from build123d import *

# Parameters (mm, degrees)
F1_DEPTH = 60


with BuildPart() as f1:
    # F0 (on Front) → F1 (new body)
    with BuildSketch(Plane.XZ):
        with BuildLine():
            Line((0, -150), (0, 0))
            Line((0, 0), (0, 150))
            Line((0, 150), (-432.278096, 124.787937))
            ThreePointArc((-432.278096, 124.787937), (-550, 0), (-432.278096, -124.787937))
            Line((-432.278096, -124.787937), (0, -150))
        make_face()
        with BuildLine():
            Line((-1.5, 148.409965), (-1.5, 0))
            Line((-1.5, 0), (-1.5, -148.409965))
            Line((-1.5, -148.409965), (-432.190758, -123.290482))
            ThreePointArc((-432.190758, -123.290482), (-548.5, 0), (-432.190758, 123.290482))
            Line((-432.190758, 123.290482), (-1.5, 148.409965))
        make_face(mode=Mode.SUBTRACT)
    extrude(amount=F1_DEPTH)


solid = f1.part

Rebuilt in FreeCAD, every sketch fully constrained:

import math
import FreeCAD as App
import Part
import Sketcher
Q = App.Units.Quantity

doc = App.newDocument("Part")
body = doc.addObject("PartDesign::Body", "Body")

# Sketch on XZ plane
sketch1 = body.newObject("Sketcher::SketchObject", "Sketch")
sketch1.AttachmentSupport = (doc.getObject("XZ_Plane"), [""])
sketch1.MapMode = "FlatFace"
sketch1.addGeometry([
    Part.LineSegment(App.Vector(0, -150, 0), App.Vector(0, 150, 0)),  # 0
    Part.LineSegment(App.Vector(0, 150, 0), App.Vector(-432, 125, 0)),  # 1
    Part.ArcOfCircle(Part.Circle(App.Vector(-425, 0, 0), App.Vector(0, 0, 1), 125), math.radians(93), math.radians(267)),  # 2
    Part.LineSegment(App.Vector(-432, -125, 0), App.Vector(0, -150, 0)),  # 3
    Part.LineSegment(App.Vector(-432, 123, 0), App.Vector(-2, 148, 0)),  # 4
    Part.LineSegment(App.Vector(-2, 148, 0), App.Vector(-2, -148, 0)),  # 5
    Part.LineSegment(App.Vector(-2, -148, 0), App.Vector(-432, -123, 0)),  # 6
    Part.ArcOfCircle(Part.Circle(App.Vector(-425, 0, 0), App.Vector(0, 0, 1), 123), math.radians(93), math.radians(267)),  # 7
], False)
sketch1.addConstraint([
    Sketcher.Constraint("Coincident", 0, 2, 1, 1),
    Sketcher.Constraint("Tangent", 1, 2, 2, 1),
    Sketcher.Constraint("Tangent", 2, 2, 3, 1),
    Sketcher.Constraint("Coincident", 3, 2, 0, 1),
    Sketcher.Constraint("Coincident", 4, 2, 5, 1),
    Sketcher.Constraint("Coincident", 5, 2, 6, 1),
    Sketcher.Constraint("Tangent", 6, 2, 7, 2),
    Sketcher.Constraint("Tangent", 7, 1, 4, 1),
    Sketcher.Constraint("Vertical", 0),
    Sketcher.Constraint("Vertical", 5),
    Sketcher.Constraint("Coincident", 7, 3, 2, 3),
    Sketcher.Constraint("Symmetric", 0, 2, 3, 2, -1, 1),
    Sketcher.Constraint("Symmetric", 6, 2, 7, 1, -1),
    Sketcher.Constraint("Parallel", 1, 4),
    Sketcher.Constraint("Radius", 2, Q("125 mm")),
    Sketcher.Constraint("Radius", 7, Q("123.5 mm")),
    Sketcher.Constraint("DistanceY", 0, 1, 0, 2, Q("300 mm")),
    Sketcher.Constraint("DistanceX", 2, 3, -1, 1, Q("425 mm")),
    Sketcher.Constraint("DistanceX", 4, 2, -1, 1, Q("1.5 mm")),
])
pad1 = body.newObject("PartDesign::Pad", "Pad")
pad1.Profile = sketch1
pad1.Length = 60

doc.recompute()
